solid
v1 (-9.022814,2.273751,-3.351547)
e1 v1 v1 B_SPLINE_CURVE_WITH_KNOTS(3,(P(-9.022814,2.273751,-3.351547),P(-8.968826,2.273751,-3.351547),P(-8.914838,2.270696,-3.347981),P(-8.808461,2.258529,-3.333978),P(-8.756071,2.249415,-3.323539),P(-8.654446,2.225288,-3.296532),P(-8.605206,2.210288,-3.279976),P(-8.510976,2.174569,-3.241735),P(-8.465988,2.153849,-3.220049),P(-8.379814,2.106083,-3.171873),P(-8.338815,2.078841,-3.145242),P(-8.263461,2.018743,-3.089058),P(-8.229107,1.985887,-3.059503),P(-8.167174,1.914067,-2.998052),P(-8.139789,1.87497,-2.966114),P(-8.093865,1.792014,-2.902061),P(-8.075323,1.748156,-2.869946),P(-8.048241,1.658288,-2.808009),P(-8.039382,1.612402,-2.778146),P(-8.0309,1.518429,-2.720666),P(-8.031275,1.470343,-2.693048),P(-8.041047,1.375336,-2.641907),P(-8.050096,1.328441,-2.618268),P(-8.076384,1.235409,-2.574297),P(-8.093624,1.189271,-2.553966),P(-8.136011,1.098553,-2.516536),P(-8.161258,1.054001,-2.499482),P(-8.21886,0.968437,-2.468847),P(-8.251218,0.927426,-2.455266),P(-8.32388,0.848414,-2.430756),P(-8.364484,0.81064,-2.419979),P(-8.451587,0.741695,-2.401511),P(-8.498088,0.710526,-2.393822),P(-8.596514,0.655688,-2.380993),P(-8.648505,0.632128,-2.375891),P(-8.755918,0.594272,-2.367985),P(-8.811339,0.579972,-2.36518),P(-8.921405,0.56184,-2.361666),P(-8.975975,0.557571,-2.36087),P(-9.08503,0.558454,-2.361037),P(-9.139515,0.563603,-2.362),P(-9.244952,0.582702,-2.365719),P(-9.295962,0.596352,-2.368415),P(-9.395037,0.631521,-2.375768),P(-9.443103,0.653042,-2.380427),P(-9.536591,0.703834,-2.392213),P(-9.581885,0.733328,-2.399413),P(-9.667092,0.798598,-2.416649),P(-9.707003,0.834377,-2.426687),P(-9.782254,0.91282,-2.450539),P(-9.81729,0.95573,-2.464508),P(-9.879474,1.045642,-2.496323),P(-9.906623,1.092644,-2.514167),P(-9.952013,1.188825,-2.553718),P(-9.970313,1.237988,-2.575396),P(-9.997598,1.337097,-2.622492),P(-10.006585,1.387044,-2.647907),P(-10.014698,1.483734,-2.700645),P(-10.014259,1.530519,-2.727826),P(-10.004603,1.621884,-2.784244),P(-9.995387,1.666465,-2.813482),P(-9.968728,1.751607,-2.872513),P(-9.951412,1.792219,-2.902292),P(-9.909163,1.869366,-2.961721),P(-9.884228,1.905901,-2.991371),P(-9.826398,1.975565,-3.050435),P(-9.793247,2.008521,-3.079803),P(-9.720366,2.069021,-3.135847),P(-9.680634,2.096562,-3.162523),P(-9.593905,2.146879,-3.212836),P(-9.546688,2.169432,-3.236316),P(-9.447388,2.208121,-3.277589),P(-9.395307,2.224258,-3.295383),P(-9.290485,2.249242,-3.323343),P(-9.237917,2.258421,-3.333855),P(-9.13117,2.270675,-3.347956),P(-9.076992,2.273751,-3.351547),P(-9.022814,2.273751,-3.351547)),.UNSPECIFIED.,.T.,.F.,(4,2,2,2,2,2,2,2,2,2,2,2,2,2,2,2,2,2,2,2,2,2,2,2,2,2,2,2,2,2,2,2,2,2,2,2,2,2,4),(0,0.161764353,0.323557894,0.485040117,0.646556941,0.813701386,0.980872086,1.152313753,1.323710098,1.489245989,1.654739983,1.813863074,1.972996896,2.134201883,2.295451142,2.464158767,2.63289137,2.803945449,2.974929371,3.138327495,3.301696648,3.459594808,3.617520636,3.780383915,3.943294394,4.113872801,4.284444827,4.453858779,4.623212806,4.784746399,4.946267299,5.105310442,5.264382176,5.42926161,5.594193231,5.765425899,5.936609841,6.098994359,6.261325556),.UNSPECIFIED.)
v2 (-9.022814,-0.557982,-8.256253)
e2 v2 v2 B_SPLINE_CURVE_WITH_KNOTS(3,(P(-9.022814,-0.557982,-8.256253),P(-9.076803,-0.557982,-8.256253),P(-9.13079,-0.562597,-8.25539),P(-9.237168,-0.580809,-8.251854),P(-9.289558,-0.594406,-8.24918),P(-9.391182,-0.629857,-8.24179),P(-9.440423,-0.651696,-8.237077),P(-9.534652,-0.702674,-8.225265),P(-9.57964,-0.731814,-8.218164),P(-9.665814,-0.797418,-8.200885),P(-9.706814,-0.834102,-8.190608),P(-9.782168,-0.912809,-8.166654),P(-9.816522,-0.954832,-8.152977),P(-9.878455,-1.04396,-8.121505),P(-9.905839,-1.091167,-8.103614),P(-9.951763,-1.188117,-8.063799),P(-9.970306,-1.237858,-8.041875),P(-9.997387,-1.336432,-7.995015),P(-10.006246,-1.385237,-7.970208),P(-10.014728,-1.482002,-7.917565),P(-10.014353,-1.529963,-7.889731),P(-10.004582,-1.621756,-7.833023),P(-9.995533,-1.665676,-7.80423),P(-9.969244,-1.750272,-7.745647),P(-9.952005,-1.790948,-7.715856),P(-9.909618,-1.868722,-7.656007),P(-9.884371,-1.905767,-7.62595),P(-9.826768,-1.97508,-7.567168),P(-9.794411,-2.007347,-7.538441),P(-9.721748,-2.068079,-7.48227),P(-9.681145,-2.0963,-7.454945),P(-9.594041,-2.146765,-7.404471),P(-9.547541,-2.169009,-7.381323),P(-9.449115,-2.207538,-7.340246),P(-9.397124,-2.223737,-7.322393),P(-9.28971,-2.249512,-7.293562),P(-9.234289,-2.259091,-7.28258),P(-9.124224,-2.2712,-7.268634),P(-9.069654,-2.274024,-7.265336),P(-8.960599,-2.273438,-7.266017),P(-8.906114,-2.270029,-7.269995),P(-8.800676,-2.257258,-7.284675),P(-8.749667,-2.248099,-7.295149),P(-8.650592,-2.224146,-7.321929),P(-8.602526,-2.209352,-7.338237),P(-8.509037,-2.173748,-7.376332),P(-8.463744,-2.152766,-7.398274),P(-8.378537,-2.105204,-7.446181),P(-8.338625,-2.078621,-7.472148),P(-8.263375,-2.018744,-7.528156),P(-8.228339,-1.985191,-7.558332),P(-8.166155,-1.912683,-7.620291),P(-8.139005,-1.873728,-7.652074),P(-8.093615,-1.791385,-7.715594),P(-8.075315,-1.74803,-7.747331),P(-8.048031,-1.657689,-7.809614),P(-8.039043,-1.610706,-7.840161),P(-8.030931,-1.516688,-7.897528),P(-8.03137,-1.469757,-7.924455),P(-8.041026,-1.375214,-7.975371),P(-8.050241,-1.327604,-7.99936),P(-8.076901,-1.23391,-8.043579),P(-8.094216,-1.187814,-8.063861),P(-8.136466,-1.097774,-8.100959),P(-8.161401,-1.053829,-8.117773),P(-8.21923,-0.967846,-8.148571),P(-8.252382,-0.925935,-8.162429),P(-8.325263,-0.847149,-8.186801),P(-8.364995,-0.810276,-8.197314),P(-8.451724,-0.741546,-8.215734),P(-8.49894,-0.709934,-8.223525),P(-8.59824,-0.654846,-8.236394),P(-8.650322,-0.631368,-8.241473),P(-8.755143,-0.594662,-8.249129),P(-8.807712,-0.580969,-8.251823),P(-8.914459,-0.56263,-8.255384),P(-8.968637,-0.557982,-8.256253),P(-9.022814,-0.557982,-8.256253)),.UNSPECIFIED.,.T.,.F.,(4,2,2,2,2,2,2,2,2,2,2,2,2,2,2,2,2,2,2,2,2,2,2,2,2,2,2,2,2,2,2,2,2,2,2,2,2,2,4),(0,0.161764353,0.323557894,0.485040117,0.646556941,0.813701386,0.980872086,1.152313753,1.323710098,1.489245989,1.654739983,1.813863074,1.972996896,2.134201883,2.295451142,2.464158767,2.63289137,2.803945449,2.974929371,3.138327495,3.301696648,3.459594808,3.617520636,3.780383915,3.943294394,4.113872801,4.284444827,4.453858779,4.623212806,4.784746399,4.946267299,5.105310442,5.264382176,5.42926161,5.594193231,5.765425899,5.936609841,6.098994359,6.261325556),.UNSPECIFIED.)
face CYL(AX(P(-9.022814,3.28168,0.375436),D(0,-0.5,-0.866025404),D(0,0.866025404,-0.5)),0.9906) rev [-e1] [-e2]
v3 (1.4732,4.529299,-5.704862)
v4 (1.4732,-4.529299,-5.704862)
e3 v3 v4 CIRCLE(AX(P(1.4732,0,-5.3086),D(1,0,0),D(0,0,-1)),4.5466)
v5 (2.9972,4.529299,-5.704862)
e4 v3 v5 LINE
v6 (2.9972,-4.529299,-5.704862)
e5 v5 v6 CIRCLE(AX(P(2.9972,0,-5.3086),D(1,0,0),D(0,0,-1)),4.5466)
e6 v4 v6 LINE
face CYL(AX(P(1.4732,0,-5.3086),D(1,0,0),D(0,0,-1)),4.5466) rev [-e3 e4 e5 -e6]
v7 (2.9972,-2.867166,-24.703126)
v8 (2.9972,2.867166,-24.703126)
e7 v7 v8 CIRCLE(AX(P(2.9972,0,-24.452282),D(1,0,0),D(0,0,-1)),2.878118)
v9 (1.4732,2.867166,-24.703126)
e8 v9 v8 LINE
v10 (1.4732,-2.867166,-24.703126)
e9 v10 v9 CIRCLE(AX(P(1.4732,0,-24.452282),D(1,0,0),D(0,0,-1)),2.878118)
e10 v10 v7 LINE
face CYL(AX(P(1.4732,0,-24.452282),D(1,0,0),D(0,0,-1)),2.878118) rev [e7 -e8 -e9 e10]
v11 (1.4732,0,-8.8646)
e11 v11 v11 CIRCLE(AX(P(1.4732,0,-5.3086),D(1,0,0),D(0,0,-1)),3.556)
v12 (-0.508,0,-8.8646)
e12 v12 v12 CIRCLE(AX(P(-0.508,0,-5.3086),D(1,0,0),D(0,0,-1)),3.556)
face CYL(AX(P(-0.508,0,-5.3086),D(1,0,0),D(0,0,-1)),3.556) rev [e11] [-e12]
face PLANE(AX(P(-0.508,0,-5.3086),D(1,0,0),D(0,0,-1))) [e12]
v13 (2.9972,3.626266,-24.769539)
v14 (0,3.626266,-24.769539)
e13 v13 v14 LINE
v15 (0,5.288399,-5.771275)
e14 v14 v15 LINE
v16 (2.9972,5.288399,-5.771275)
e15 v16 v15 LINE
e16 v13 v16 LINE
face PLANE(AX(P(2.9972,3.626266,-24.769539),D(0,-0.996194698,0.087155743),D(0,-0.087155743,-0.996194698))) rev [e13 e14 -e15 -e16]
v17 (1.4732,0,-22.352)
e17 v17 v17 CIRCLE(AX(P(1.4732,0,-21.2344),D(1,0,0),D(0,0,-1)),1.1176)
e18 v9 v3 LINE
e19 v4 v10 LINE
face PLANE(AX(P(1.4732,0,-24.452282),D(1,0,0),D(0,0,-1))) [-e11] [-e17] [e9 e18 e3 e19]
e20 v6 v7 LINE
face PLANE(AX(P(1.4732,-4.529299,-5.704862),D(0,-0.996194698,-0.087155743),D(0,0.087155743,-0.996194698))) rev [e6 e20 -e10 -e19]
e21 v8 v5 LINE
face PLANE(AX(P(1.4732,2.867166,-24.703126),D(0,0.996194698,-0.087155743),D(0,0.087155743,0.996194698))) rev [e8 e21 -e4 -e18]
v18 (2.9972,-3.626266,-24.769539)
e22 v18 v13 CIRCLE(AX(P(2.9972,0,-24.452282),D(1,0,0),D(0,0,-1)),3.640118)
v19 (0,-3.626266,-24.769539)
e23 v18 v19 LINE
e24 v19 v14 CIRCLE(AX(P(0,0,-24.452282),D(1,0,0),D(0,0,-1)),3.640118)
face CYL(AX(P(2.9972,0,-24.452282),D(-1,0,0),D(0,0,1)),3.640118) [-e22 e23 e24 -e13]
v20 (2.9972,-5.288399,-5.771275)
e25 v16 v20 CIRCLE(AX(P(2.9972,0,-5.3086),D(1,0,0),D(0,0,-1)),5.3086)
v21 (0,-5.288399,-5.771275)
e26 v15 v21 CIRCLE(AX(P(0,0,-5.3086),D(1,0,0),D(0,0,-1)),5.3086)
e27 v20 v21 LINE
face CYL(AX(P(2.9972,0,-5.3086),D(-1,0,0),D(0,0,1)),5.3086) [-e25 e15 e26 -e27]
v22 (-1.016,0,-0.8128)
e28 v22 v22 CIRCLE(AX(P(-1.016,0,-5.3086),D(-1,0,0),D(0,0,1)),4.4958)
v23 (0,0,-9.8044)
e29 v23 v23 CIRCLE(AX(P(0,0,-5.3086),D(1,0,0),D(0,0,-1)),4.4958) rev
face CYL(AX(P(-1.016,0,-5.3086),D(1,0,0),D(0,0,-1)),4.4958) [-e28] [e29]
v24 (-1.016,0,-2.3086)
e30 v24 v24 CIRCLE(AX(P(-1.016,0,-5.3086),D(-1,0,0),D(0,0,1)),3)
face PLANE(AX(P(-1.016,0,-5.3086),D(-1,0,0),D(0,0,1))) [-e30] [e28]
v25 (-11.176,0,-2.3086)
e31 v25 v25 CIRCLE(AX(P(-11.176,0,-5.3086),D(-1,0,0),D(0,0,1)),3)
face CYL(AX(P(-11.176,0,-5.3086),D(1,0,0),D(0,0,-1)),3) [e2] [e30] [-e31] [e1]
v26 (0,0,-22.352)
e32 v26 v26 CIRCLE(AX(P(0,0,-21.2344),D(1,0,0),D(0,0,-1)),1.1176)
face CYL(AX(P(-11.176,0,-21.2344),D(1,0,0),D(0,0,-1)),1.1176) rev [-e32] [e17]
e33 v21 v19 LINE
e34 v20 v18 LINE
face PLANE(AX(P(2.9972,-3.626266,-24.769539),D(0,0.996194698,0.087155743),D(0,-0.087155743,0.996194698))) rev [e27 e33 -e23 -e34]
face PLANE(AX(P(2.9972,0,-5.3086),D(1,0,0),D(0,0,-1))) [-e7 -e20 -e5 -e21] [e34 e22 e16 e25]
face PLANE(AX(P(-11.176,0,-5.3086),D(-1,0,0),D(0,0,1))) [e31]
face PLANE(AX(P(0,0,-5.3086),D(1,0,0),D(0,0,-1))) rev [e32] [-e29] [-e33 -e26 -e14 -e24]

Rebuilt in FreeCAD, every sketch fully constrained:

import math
import FreeCAD as App
import Part
import Sketcher

V = App.Vector
Q = App.Units.Quantity

doc = App.newDocument("Part")
body = doc.addObject("PartDesign::Body", "Body")

sketch1 = body.newObject("Sketcher::SketchObject", "Sketch")
sketch1.AttachmentSupport = (doc.getObject("YZ_Plane"), [""])
sketch1.MapMode = "FlatFace"
sketch1.addGeometry([
    Part.LineSegment(V(3.6, -24.8, 0), V(5.3, -5.8, 0)),
    Part.ArcOfCircle(Part.Circle(V(0, -5.3, 0), V(0, 0, 1), 5.3), math.radians(-5), math.radians(185)),
    Part.LineSegment(V(-5.3, -5.8, 0), V(-3.6, -24.8, 0)),
    Part.ArcOfCircle(Part.Circle(V(0, -24.5, 0), V(0, 0, 1), 3.6), math.radians(-175), math.radians(-5)),
], False)
sketch1.addConstraint([
    Sketcher.Constraint("Tangent", 0, 2, 1, 1),
    Sketcher.Constraint("Tangent", 1, 2, 2, 1),
    Sketcher.Constraint("Tangent", 2, 2, 3, 1),
    Sketcher.Constraint("Tangent", 3, 2, 0, 1),
    Sketcher.Constraint("Symmetric", 0, 2, 1, 2, -2),
    Sketcher.Constraint("Angle", 0, Q("85 deg")),
    Sketcher.Constraint("Radius", 1, Q("0.209 in")),
    Sketcher.Constraint("DistanceY", 1, 3, -1, 1, Q("0.209 in")),
    Sketcher.Constraint("Radius", 3, 3.640118),
])
pad1 = body.newObject("PartDesign::Pad", "Pad")
pad1.Profile = sketch1
pad1.Length = Q("0.118 in")

sketch2 = body.newObject("Sketcher::SketchObject", "Sketch001")
sketch2.AttachmentSupport = (doc.getObject("YZ_Plane"), [""])
sketch2.MapMode = "FlatFace"
sketch2.addGeometry(Part.Circle(V(0, -5.3, 0), V(0, 0, 1), 3), False)
sketch2.addConstraint([
    Sketcher.Constraint("PointOnObject", 0, 3, -2),
    Sketcher.Constraint("Diameter", 0, 6.0),
    Sketcher.Constraint("DistanceY", 0, 3, -1, 1, Q("0.209 in")),
])
pad2 = body.newObject("PartDesign::Pad", "Pad001")
pad2.Profile = sketch2
pad2.Length = Q("0.44 in")
pad2.Reversed = True

sketch3 = body.newObject("Sketcher::SketchObject", "Sketch002")
sketch3.AttachmentSupport = (doc.getObject("YZ_Plane"), [""])
sketch3.MapMode = "FlatFace"
sketch3.addGeometry(Part.Circle(V(0, -5.3, 0), V(0, 0, 1), 4.5), False)
sketch3.addConstraint([
    Sketcher.Constraint("PointOnObject", 0, 3, -2),
    Sketcher.Constraint("Diameter", 0, Q("0.354 in")),
    Sketcher.Constraint("DistanceY", 0, 3, -1, 1, Q("0.209 in")),
])
pad3 = body.newObject("PartDesign::Pad", "Pad002")
pad3.Profile = sketch3
pad3.Length = Q("0.04 in")
pad3.Reversed = True

sketch4 = body.newObject("Sketcher::SketchObject", "Sketch003")
sketch4.AttachmentSupport = (doc.getObject("YZ_Plane"), [""])
sketch4.MapMode = "FlatFace"
sketch4.AttachmentOffset = App.Placement(V(0, 0, 0.118 * 25.4), App.Rotation())
sketch4.addGeometry([
    Part.LineSegment(V(2.9, -24.7, 0), V(4.5, -5.7, 0)),
    Part.ArcOfCircle(Part.Circle(V(0, -5.3, 0), V(0, 0, 1), 4.5), math.radians(-5), math.radians(185)),
    Part.LineSegment(V(-4.5, -5.7, 0), V(-2.9, -24.7, 0)),
    Part.ArcOfCircle(Part.Circle(V(0, -24.5, 0), V(0, 0, 1), 2.9), math.radians(-175), math.radians(-5)),
], False)
sketch4.addConstraint([
    Sketcher.Constraint("Tangent", 0, 2, 1, 1),
    Sketcher.Constraint("Tangent", 1, 2, 2, 1),
    Sketcher.Constraint("Tangent", 2, 2, 3, 1),
    Sketcher.Constraint("Tangent", 3, 2, 0, 1),
    Sketcher.Constraint("Symmetric", 0, 2, 1, 2, -2),
    Sketcher.Constraint("Angle", 0, Q("85 deg")),
    Sketcher.Constraint("Radius", 1, Q("0.179 in")),
    Sketcher.Constraint("DistanceY", 1, 3, -1, 1, Q("0.209 in")),
    Sketcher.Constraint("Radius", 3, 2.878118),
])
pocket1 = body.newObject("PartDesign::Pocket", "Pocket")
pocket1.Profile = sketch4
pocket1.Length = Q("0.06 in")

sketch5 = body.newObject("Sketcher::SketchObject", "Sketch004")
sketch5.AttachmentSupport = (doc.getObject("YZ_Plane"), [""])
sketch5.MapMode = "FlatFace"
sketch5.AttachmentOffset = App.Placement(V(0, 0, 0.058 * 25.4), App.Rotation())
sketch5.addGeometry(Part.Circle(V(0, -5.3, 0), V(0, 0, 1), 3.6), False)
sketch5.addConstraint([
    Sketcher.Constraint("PointOnObject", 0, 3, -2),
    Sketcher.Constraint("Diameter", 0, Q("0.28 in")),
    Sketcher.Constraint("DistanceY", 0, 3, -1, 1, Q("0.209 in")),
])
pocket2 = body.newObject("PartDesign::Pocket", "Pocket001")
pocket2.Profile = sketch5
pocket2.Length = Q("0.078 in")

sketch6 = body.newObject("Sketcher::SketchObject", "Sketch005")
sketch6.AttachmentSupport = (doc.getObject("YZ_Plane"), [""])
sketch6.MapMode = "FlatFace"
sketch6.AttachmentOffset = App.Placement(V(0, 0, 0.058 * 25.4), App.Rotation())
sketch6.addGeometry(Part.Circle(V(0, -21.2, 0), V(0, 0, 1), 1.1), False)
sketch6.addConstraint([
    Sketcher.Constraint("PointOnObject", 0, 3, -2),
    Sketcher.Constraint("Diameter", 0, Q("0.088 in")),
    Sketcher.Constraint("DistanceY", 0, 3, -1, 1, Q("0.836 in")),
])
pocket3 = body.newObject("PartDesign::Pocket", "Pocket002")
pocket3.Profile = sketch6
pocket3.Type = "ThroughAll"

sketch7 = body.newObject("Sketcher::SketchObject", "Sketch006")
sketch7.Placement = App.Placement(V(0, -4.097011, -7.096232), App.Rotation(V(-1, 0, 0), V(0, 0.866025404, -0.5), V(0, -0.5, -0.866025404), "ZXY"))
sketch7.addGeometry(Part.Circle(V(9, 2.7, 0), V(0, 0, 1), 1), False)
sketch7.addConstraint([
    Sketcher.Constraint("Diameter", 0, Q("0.078 in")),
    Sketcher.Constraint("DistanceY", -1, 1, 0, 3, Q("0.1045 in")),
    Sketcher.Constraint("DistanceX", -1, 1, 0, 3, 9.022814),
])
pocket4 = body.newObject("PartDesign::Pocket", "Pocket003")
pocket4.Profile = sketch7
pocket4.Length = Q("0.4 in")

doc.recompute()
